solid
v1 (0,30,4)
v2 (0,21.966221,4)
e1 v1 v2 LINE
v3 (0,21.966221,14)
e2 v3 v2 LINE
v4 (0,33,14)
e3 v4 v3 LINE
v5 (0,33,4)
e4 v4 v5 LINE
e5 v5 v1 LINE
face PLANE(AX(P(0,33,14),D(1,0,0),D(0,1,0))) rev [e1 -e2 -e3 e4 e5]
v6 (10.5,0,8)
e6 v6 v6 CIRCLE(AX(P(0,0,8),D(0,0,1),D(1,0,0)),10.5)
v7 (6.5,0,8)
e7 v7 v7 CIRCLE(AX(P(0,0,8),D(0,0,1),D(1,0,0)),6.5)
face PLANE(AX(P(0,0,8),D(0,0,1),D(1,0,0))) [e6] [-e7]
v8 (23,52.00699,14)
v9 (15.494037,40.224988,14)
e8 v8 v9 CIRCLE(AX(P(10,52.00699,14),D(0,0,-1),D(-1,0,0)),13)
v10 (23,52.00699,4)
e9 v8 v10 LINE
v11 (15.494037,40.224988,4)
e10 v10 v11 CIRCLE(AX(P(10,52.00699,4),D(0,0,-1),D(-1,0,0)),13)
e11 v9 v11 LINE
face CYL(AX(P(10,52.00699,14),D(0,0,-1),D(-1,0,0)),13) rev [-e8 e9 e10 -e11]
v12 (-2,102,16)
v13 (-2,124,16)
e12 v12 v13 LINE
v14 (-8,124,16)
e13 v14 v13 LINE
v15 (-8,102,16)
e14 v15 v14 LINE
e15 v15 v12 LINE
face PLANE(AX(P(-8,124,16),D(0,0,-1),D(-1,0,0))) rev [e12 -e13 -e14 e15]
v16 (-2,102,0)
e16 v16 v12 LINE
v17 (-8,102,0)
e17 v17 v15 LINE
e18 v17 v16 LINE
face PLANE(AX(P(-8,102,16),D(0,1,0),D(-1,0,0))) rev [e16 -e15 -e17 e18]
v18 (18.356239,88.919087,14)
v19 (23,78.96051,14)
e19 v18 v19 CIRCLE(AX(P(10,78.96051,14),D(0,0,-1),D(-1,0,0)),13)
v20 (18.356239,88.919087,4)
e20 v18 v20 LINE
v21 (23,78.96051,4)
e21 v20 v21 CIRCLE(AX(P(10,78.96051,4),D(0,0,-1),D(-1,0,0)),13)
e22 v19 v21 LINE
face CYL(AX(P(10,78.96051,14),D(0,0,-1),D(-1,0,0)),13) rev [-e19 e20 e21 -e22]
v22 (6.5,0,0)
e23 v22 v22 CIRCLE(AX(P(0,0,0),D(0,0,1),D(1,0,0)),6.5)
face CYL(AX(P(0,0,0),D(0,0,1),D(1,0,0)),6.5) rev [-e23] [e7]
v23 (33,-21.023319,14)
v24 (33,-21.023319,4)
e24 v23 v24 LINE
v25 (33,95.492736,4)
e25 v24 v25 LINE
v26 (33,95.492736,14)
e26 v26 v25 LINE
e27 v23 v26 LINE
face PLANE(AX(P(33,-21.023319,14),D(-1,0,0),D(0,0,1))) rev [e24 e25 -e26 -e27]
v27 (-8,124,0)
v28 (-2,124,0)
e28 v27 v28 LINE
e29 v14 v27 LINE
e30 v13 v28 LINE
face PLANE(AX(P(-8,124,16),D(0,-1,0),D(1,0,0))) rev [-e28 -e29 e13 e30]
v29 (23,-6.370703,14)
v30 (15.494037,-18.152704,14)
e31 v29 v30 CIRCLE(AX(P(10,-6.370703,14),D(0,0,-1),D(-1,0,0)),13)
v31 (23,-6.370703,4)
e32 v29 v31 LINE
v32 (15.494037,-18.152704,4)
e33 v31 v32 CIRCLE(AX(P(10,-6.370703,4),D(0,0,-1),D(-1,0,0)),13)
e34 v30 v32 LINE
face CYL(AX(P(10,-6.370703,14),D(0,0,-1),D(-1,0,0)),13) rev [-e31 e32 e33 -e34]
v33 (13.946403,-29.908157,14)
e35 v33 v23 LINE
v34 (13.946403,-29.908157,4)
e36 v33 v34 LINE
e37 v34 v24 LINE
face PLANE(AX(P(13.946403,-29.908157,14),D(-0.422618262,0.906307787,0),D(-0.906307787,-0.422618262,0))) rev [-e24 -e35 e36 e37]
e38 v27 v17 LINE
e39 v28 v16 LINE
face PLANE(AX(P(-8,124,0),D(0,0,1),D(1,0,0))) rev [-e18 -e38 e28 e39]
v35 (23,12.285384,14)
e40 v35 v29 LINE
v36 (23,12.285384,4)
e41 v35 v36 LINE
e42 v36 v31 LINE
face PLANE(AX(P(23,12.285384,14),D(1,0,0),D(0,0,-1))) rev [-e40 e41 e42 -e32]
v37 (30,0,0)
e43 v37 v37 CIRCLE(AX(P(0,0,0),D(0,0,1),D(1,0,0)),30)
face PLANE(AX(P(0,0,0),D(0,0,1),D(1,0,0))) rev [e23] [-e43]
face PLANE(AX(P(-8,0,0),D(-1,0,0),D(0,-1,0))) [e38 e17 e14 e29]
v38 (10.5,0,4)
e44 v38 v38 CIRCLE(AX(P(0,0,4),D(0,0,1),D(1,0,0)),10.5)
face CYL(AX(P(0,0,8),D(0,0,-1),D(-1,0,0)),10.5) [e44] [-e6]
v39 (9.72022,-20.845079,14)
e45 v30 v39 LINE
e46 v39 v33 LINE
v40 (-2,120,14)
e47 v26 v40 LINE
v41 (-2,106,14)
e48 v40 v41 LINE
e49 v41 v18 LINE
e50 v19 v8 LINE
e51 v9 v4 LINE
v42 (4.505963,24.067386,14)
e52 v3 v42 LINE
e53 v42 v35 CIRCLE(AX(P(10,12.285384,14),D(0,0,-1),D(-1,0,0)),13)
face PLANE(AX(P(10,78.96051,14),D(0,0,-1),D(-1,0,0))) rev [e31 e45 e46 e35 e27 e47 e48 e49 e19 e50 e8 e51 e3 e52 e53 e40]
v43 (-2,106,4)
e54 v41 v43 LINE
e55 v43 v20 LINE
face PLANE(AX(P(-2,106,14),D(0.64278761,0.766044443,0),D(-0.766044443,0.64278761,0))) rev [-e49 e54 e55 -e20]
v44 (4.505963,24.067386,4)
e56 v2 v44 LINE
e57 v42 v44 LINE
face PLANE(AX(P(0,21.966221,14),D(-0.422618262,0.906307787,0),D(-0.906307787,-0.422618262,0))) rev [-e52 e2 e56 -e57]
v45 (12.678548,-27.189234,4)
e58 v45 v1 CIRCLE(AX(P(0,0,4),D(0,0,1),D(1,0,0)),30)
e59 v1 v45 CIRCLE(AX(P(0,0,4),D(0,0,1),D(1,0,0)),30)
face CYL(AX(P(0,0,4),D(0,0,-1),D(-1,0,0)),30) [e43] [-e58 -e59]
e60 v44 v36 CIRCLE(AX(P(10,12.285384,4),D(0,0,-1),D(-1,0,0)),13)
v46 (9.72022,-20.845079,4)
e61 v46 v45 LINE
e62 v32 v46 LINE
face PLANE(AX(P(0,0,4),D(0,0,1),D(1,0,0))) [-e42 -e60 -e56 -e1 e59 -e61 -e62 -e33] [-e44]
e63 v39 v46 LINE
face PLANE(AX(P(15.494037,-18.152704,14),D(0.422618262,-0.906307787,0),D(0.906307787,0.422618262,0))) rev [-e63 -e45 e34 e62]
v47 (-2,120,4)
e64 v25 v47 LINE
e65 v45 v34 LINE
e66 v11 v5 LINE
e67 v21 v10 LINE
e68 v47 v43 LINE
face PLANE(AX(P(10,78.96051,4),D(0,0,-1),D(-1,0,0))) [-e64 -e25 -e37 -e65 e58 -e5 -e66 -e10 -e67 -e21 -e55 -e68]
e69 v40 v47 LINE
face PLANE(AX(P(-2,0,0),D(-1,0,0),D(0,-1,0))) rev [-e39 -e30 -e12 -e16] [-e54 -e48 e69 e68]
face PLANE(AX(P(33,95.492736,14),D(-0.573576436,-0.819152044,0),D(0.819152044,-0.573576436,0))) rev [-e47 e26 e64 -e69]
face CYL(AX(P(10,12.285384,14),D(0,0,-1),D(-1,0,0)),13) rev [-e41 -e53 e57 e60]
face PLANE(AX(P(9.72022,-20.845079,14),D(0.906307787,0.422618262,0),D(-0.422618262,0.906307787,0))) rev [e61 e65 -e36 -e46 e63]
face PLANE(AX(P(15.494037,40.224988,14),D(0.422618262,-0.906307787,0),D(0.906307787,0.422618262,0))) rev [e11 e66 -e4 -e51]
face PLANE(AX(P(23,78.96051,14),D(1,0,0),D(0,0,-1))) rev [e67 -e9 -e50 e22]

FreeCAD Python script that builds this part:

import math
import FreeCAD as App
import Part
import Sketcher
Q = App.Units.Quantity


def add_polygon(sketch, points):
    """Adds a closed chain of lines whose ends are joined by coincident constraints."""
    first, n = sketch.GeometryCount, len(points)
    for a, b in zip(points, points[1:] + points[:1]):
        sketch.addGeometry(Part.LineSegment(App.Vector(*a, 0), App.Vector(*b, 0)), False)
    for i in range(n):
        sketch.addConstraint(Sketcher.Constraint("Coincident", first + i, 2, first + (i + 1) % n, 1))

doc = App.newDocument("Part")
body = doc.addObject("PartDesign::Body", "Body")

sketch1 = body.newObject("Sketcher::SketchObject", "Sketch")
sketch1.AttachmentSupport = (doc.getObject("XY_Plane"), [""])
sketch1.MapMode = "FlatFace"
sketch1.addGeometry(Part.Circle(App.Vector(0, 0, 0), App.Vector(0, 0, 1), 30), False)
sketch1.addConstraint([
    Sketcher.Constraint("Coincident", 0, 3, -1, 1),
    Sketcher.Constraint("Diameter", 0, 60.0),
])
pad1 = body.newObject("PartDesign::Pad", "Pad")
pad1.Profile = sketch1
pad1.Length = 4

sketch2 = body.newObject("Sketcher::SketchObject", "Sketch001")
sketch2.AttachmentSupport = (doc.getObject("XY_Plane"), [""])
sketch2.MapMode = "FlatFace"
sketch2.AttachmentOffset = App.Placement(App.Vector(0, 0, 4), App.Rotation())
sketch2.addGeometry([
    Part.LineSegment(App.Vector(9.7, -20.8, 0), App.Vector(13.9, -29.9, 0)),
    Part.LineSegment(App.Vector(13.9, -29.9, 0), App.Vector(33, -21, 0)),
    Part.LineSegment(App.Vector(33, -21, 0), App.Vector(33, 95.5, 0)),
    Part.LineSegment(App.Vector(33, 95.5, 0), App.Vector(-2, 120, 0)),
    Part.LineSegment(App.Vector(-2, 120, 0), App.Vector(-2, 106, 0)),
    Part.LineSegment(App.Vector(-2, 106, 0), App.Vector(18.4, 88.9, 0)),
    Part.ArcOfCircle(Part.Circle(App.Vector(10, 79, 0), App.Vector(0, 0, 1), 13), math.radians(0), math.radians(50)),
    Part.LineSegment(App.Vector(23, 79, 0), App.Vector(23, 52, 0)),
    Part.ArcOfCircle(Part.Circle(App.Vector(10, 52, 0), App.Vector(0, 0, 1), 13), math.radians(-65), math.radians(0)),
    Part.LineSegment(App.Vector(15.5, 40.2, 0), App.Vector(0, 33, 0)),
    Part.LineSegment(App.Vector(0, 33, 0), App.Vector(0, 22, 0)),
    Part.LineSegment(App.Vector(0, 22, 0), App.Vector(4.5, 24.1, 0)),
    Part.ArcOfCircle(Part.Circle(App.Vector(10, 12.3, 0), App.Vector(0, 0, 1), 13), math.radians(0), math.radians(115)),
    Part.LineSegment(App.Vector(23, 12.3, 0), App.Vector(23, -6.4, 0)),
    Part.ArcOfCircle(Part.Circle(App.Vector(10, -6.4, 0), App.Vector(0, 0, 1), 13), math.radians(-65), math.radians(0)),
    Part.LineSegment(App.Vector(15.5, -18.2, 0), App.Vector(9.7, -20.8, 0)),
], False)
sketch2.addConstraint([
    Sketcher.Constraint("Coincident", 0, 2, 1, 1),
    Sketcher.Constraint("Coincident", 1, 2, 2, 1),
    Sketcher.Constraint("Coincident", 2, 2, 3, 1),
    Sketcher.Constraint("Coincident", 3, 2, 4, 1),
    Sketcher.Constraint("Coincident", 4, 2, 5, 1),
    Sketcher.Constraint("Tangent", 5, 2, 6, 2),
    Sketcher.Constraint("Tangent", 6, 1, 7, 1),
    Sketcher.Constraint("Tangent", 7, 2, 8, 2),
    Sketcher.Constraint("Tangent", 8, 1, 9, 1),
    Sketcher.Constraint("Coincident", 9, 2, 10, 1),
    Sketcher.Constraint("Coincident", 10, 2, 11, 1),
    Sketcher.Constraint("Tangent", 11, 2, 12, 2),
    Sketcher.Constraint("Tangent", 12, 1, 13, 1),
    Sketcher.Constraint("Tangent", 13, 2, 14, 2),
    Sketcher.Constraint("Tangent", 14, 1, 15, 1),
    Sketcher.Constraint("Coincident", 15, 2, 0, 1),
    Sketcher.Constraint("Vertical", 2),
    Sketcher.Constraint("Vertical", 4),
    Sketcher.Constraint("Vertical", 7),
    Sketcher.Constraint("Vertical", 10),
    Sketcher.Constraint("Vertical", 13),
    Sketcher.Constraint("Equal", 6, 8),
    Sketcher.Constraint("Equal", 8, 12),
    Sketcher.Constraint("Equal", 12, 14),
    Sketcher.Constraint("PointOnObject", 9, 2, -2),
    Sketcher.Constraint("Perpendicular", 0, 1),
    Sketcher.Constraint("Parallel", 1, 9),
    Sketcher.Constraint("Parallel", 9, 11),
    Sketcher.Constraint("Parallel", 11, 15),
    Sketcher.Constraint("Vertical", 8, 3, 12, 3),
    Sketcher.Constraint("Radius", 6, 13.0),
    Sketcher.Constraint("DistanceY", 4, 2, 4, 1, 14.0),
    Sketcher.Constraint("Angle", 0, Q("-65 deg")),
    Sketcher.Constraint("Angle", 3, Q("145 deg")),
    Sketcher.Constraint("Angle", 5, Q("-40 deg")),
    Sketcher.Constraint("Distance", 0, 10.0),
    Sketcher.Constraint("DistanceX", -1, 1, 6, 3, 10.0),
    Sketcher.Constraint("DistanceX", -1, 1, 1, 2, 33.0),
    Sketcher.Constraint("DistanceX", 3, 2, -1, 1, 2.0),
    Sketcher.Constraint("DistanceY", -1, 1, 3, 2, 120.0),
    Sketcher.Constraint("DistanceY", -1, 1, 9, 2, 33.0),
    Sketcher.Constraint("DistanceY", 10, 2, 10, 1, 11.033779),
    Sketcher.Constraint("Distance", 1, 21.023319),
    Sketcher.Constraint("DistanceY", 2, 1, 2, 2, 116.516055),
])
pad2 = body.newObject("PartDesign::Pad", "Pad001")
pad2.Profile = sketch2
pad2.Length = 10

sketch3 = body.newObject("Sketcher::SketchObject", "Sketch002")
sketch3.AttachmentSupport = (doc.getObject("YZ_Plane"), [""])
sketch3.MapMode = "FlatFace"
sketch3.AttachmentOffset = App.Placement(App.Vector(0, 0, -2), App.Rotation())
add_polygon(sketch3, [(124, 16), (124, 0), (102, 0), (102, 16)])
sketch3.addConstraint([
    Sketcher.Constraint("Vertical", 0),
    Sketcher.Constraint("Horizontal", 1),
    Sketcher.Constraint("Vertical", 2),
    Sketcher.Constraint("Horizontal", 3),
    Sketcher.Constraint("PointOnObject", 0, 2, -1),
    Sketcher.Constraint("DistanceX", 1, 2, 1, 1, 22.0),
    Sketcher.Constraint("DistanceY", 0, 2, 0, 1, 16.0),
    Sketcher.Constraint("DistanceX", -1, 1, 0, 2, 124.0),
])
pad3 = body.newObject("PartDesign::Pad", "Pad002")
pad3.Profile = sketch3
pad3.Length = 6
pad3.Reversed = True

sketch4 = body.newObject("Sketcher::SketchObject", "Sketch003")
sketch4.AttachmentSupport = (doc.getObject("XY_Plane"), [""])
sketch4.MapMode = "FlatFace"
sketch4.AttachmentOffset = App.Placement(App.Vector(0, 0, 4), App.Rotation())
sketch4.addGeometry(Part.Circle(App.Vector(0, 0, 0), App.Vector(0, 0, 1), 10), False)
sketch4.addConstraint([
    Sketcher.Constraint("Coincident", 0, 3, -1, 1),
    Sketcher.Constraint("Diameter", 0, 21.0),
])
pad4 = body.newObject("PartDesign::Pad", "Pad003")
pad4.Profile = sketch4
pad4.Length = 4

sketch5 = body.newObject("Sketcher::SketchObject", "Sketch004")
sketch5.AttachmentSupport = (doc.getObject("XY_Plane"), [""])
sketch5.MapMode = "FlatFace"
sketch5.AttachmentOffset = App.Placement(App.Vector(0, 0, 8), App.Rotation())
sketch5.addGeometry(Part.Circle(App.Vector(0, 0, 0), App.Vector(0, 0, 1), 6), False)
sketch5.addConstraint([
    Sketcher.Constraint("Coincident", 0, 3, -1, 1),
    Sketcher.Constraint("Diameter", 0, 13.0),
])
pocket1 = body.newObject("PartDesign::Pocket", "Pocket")
pocket1.Profile = sketch5
pocket1.Type = "ThroughAll"
pocket1.Midplane = True

doc.recompute()
